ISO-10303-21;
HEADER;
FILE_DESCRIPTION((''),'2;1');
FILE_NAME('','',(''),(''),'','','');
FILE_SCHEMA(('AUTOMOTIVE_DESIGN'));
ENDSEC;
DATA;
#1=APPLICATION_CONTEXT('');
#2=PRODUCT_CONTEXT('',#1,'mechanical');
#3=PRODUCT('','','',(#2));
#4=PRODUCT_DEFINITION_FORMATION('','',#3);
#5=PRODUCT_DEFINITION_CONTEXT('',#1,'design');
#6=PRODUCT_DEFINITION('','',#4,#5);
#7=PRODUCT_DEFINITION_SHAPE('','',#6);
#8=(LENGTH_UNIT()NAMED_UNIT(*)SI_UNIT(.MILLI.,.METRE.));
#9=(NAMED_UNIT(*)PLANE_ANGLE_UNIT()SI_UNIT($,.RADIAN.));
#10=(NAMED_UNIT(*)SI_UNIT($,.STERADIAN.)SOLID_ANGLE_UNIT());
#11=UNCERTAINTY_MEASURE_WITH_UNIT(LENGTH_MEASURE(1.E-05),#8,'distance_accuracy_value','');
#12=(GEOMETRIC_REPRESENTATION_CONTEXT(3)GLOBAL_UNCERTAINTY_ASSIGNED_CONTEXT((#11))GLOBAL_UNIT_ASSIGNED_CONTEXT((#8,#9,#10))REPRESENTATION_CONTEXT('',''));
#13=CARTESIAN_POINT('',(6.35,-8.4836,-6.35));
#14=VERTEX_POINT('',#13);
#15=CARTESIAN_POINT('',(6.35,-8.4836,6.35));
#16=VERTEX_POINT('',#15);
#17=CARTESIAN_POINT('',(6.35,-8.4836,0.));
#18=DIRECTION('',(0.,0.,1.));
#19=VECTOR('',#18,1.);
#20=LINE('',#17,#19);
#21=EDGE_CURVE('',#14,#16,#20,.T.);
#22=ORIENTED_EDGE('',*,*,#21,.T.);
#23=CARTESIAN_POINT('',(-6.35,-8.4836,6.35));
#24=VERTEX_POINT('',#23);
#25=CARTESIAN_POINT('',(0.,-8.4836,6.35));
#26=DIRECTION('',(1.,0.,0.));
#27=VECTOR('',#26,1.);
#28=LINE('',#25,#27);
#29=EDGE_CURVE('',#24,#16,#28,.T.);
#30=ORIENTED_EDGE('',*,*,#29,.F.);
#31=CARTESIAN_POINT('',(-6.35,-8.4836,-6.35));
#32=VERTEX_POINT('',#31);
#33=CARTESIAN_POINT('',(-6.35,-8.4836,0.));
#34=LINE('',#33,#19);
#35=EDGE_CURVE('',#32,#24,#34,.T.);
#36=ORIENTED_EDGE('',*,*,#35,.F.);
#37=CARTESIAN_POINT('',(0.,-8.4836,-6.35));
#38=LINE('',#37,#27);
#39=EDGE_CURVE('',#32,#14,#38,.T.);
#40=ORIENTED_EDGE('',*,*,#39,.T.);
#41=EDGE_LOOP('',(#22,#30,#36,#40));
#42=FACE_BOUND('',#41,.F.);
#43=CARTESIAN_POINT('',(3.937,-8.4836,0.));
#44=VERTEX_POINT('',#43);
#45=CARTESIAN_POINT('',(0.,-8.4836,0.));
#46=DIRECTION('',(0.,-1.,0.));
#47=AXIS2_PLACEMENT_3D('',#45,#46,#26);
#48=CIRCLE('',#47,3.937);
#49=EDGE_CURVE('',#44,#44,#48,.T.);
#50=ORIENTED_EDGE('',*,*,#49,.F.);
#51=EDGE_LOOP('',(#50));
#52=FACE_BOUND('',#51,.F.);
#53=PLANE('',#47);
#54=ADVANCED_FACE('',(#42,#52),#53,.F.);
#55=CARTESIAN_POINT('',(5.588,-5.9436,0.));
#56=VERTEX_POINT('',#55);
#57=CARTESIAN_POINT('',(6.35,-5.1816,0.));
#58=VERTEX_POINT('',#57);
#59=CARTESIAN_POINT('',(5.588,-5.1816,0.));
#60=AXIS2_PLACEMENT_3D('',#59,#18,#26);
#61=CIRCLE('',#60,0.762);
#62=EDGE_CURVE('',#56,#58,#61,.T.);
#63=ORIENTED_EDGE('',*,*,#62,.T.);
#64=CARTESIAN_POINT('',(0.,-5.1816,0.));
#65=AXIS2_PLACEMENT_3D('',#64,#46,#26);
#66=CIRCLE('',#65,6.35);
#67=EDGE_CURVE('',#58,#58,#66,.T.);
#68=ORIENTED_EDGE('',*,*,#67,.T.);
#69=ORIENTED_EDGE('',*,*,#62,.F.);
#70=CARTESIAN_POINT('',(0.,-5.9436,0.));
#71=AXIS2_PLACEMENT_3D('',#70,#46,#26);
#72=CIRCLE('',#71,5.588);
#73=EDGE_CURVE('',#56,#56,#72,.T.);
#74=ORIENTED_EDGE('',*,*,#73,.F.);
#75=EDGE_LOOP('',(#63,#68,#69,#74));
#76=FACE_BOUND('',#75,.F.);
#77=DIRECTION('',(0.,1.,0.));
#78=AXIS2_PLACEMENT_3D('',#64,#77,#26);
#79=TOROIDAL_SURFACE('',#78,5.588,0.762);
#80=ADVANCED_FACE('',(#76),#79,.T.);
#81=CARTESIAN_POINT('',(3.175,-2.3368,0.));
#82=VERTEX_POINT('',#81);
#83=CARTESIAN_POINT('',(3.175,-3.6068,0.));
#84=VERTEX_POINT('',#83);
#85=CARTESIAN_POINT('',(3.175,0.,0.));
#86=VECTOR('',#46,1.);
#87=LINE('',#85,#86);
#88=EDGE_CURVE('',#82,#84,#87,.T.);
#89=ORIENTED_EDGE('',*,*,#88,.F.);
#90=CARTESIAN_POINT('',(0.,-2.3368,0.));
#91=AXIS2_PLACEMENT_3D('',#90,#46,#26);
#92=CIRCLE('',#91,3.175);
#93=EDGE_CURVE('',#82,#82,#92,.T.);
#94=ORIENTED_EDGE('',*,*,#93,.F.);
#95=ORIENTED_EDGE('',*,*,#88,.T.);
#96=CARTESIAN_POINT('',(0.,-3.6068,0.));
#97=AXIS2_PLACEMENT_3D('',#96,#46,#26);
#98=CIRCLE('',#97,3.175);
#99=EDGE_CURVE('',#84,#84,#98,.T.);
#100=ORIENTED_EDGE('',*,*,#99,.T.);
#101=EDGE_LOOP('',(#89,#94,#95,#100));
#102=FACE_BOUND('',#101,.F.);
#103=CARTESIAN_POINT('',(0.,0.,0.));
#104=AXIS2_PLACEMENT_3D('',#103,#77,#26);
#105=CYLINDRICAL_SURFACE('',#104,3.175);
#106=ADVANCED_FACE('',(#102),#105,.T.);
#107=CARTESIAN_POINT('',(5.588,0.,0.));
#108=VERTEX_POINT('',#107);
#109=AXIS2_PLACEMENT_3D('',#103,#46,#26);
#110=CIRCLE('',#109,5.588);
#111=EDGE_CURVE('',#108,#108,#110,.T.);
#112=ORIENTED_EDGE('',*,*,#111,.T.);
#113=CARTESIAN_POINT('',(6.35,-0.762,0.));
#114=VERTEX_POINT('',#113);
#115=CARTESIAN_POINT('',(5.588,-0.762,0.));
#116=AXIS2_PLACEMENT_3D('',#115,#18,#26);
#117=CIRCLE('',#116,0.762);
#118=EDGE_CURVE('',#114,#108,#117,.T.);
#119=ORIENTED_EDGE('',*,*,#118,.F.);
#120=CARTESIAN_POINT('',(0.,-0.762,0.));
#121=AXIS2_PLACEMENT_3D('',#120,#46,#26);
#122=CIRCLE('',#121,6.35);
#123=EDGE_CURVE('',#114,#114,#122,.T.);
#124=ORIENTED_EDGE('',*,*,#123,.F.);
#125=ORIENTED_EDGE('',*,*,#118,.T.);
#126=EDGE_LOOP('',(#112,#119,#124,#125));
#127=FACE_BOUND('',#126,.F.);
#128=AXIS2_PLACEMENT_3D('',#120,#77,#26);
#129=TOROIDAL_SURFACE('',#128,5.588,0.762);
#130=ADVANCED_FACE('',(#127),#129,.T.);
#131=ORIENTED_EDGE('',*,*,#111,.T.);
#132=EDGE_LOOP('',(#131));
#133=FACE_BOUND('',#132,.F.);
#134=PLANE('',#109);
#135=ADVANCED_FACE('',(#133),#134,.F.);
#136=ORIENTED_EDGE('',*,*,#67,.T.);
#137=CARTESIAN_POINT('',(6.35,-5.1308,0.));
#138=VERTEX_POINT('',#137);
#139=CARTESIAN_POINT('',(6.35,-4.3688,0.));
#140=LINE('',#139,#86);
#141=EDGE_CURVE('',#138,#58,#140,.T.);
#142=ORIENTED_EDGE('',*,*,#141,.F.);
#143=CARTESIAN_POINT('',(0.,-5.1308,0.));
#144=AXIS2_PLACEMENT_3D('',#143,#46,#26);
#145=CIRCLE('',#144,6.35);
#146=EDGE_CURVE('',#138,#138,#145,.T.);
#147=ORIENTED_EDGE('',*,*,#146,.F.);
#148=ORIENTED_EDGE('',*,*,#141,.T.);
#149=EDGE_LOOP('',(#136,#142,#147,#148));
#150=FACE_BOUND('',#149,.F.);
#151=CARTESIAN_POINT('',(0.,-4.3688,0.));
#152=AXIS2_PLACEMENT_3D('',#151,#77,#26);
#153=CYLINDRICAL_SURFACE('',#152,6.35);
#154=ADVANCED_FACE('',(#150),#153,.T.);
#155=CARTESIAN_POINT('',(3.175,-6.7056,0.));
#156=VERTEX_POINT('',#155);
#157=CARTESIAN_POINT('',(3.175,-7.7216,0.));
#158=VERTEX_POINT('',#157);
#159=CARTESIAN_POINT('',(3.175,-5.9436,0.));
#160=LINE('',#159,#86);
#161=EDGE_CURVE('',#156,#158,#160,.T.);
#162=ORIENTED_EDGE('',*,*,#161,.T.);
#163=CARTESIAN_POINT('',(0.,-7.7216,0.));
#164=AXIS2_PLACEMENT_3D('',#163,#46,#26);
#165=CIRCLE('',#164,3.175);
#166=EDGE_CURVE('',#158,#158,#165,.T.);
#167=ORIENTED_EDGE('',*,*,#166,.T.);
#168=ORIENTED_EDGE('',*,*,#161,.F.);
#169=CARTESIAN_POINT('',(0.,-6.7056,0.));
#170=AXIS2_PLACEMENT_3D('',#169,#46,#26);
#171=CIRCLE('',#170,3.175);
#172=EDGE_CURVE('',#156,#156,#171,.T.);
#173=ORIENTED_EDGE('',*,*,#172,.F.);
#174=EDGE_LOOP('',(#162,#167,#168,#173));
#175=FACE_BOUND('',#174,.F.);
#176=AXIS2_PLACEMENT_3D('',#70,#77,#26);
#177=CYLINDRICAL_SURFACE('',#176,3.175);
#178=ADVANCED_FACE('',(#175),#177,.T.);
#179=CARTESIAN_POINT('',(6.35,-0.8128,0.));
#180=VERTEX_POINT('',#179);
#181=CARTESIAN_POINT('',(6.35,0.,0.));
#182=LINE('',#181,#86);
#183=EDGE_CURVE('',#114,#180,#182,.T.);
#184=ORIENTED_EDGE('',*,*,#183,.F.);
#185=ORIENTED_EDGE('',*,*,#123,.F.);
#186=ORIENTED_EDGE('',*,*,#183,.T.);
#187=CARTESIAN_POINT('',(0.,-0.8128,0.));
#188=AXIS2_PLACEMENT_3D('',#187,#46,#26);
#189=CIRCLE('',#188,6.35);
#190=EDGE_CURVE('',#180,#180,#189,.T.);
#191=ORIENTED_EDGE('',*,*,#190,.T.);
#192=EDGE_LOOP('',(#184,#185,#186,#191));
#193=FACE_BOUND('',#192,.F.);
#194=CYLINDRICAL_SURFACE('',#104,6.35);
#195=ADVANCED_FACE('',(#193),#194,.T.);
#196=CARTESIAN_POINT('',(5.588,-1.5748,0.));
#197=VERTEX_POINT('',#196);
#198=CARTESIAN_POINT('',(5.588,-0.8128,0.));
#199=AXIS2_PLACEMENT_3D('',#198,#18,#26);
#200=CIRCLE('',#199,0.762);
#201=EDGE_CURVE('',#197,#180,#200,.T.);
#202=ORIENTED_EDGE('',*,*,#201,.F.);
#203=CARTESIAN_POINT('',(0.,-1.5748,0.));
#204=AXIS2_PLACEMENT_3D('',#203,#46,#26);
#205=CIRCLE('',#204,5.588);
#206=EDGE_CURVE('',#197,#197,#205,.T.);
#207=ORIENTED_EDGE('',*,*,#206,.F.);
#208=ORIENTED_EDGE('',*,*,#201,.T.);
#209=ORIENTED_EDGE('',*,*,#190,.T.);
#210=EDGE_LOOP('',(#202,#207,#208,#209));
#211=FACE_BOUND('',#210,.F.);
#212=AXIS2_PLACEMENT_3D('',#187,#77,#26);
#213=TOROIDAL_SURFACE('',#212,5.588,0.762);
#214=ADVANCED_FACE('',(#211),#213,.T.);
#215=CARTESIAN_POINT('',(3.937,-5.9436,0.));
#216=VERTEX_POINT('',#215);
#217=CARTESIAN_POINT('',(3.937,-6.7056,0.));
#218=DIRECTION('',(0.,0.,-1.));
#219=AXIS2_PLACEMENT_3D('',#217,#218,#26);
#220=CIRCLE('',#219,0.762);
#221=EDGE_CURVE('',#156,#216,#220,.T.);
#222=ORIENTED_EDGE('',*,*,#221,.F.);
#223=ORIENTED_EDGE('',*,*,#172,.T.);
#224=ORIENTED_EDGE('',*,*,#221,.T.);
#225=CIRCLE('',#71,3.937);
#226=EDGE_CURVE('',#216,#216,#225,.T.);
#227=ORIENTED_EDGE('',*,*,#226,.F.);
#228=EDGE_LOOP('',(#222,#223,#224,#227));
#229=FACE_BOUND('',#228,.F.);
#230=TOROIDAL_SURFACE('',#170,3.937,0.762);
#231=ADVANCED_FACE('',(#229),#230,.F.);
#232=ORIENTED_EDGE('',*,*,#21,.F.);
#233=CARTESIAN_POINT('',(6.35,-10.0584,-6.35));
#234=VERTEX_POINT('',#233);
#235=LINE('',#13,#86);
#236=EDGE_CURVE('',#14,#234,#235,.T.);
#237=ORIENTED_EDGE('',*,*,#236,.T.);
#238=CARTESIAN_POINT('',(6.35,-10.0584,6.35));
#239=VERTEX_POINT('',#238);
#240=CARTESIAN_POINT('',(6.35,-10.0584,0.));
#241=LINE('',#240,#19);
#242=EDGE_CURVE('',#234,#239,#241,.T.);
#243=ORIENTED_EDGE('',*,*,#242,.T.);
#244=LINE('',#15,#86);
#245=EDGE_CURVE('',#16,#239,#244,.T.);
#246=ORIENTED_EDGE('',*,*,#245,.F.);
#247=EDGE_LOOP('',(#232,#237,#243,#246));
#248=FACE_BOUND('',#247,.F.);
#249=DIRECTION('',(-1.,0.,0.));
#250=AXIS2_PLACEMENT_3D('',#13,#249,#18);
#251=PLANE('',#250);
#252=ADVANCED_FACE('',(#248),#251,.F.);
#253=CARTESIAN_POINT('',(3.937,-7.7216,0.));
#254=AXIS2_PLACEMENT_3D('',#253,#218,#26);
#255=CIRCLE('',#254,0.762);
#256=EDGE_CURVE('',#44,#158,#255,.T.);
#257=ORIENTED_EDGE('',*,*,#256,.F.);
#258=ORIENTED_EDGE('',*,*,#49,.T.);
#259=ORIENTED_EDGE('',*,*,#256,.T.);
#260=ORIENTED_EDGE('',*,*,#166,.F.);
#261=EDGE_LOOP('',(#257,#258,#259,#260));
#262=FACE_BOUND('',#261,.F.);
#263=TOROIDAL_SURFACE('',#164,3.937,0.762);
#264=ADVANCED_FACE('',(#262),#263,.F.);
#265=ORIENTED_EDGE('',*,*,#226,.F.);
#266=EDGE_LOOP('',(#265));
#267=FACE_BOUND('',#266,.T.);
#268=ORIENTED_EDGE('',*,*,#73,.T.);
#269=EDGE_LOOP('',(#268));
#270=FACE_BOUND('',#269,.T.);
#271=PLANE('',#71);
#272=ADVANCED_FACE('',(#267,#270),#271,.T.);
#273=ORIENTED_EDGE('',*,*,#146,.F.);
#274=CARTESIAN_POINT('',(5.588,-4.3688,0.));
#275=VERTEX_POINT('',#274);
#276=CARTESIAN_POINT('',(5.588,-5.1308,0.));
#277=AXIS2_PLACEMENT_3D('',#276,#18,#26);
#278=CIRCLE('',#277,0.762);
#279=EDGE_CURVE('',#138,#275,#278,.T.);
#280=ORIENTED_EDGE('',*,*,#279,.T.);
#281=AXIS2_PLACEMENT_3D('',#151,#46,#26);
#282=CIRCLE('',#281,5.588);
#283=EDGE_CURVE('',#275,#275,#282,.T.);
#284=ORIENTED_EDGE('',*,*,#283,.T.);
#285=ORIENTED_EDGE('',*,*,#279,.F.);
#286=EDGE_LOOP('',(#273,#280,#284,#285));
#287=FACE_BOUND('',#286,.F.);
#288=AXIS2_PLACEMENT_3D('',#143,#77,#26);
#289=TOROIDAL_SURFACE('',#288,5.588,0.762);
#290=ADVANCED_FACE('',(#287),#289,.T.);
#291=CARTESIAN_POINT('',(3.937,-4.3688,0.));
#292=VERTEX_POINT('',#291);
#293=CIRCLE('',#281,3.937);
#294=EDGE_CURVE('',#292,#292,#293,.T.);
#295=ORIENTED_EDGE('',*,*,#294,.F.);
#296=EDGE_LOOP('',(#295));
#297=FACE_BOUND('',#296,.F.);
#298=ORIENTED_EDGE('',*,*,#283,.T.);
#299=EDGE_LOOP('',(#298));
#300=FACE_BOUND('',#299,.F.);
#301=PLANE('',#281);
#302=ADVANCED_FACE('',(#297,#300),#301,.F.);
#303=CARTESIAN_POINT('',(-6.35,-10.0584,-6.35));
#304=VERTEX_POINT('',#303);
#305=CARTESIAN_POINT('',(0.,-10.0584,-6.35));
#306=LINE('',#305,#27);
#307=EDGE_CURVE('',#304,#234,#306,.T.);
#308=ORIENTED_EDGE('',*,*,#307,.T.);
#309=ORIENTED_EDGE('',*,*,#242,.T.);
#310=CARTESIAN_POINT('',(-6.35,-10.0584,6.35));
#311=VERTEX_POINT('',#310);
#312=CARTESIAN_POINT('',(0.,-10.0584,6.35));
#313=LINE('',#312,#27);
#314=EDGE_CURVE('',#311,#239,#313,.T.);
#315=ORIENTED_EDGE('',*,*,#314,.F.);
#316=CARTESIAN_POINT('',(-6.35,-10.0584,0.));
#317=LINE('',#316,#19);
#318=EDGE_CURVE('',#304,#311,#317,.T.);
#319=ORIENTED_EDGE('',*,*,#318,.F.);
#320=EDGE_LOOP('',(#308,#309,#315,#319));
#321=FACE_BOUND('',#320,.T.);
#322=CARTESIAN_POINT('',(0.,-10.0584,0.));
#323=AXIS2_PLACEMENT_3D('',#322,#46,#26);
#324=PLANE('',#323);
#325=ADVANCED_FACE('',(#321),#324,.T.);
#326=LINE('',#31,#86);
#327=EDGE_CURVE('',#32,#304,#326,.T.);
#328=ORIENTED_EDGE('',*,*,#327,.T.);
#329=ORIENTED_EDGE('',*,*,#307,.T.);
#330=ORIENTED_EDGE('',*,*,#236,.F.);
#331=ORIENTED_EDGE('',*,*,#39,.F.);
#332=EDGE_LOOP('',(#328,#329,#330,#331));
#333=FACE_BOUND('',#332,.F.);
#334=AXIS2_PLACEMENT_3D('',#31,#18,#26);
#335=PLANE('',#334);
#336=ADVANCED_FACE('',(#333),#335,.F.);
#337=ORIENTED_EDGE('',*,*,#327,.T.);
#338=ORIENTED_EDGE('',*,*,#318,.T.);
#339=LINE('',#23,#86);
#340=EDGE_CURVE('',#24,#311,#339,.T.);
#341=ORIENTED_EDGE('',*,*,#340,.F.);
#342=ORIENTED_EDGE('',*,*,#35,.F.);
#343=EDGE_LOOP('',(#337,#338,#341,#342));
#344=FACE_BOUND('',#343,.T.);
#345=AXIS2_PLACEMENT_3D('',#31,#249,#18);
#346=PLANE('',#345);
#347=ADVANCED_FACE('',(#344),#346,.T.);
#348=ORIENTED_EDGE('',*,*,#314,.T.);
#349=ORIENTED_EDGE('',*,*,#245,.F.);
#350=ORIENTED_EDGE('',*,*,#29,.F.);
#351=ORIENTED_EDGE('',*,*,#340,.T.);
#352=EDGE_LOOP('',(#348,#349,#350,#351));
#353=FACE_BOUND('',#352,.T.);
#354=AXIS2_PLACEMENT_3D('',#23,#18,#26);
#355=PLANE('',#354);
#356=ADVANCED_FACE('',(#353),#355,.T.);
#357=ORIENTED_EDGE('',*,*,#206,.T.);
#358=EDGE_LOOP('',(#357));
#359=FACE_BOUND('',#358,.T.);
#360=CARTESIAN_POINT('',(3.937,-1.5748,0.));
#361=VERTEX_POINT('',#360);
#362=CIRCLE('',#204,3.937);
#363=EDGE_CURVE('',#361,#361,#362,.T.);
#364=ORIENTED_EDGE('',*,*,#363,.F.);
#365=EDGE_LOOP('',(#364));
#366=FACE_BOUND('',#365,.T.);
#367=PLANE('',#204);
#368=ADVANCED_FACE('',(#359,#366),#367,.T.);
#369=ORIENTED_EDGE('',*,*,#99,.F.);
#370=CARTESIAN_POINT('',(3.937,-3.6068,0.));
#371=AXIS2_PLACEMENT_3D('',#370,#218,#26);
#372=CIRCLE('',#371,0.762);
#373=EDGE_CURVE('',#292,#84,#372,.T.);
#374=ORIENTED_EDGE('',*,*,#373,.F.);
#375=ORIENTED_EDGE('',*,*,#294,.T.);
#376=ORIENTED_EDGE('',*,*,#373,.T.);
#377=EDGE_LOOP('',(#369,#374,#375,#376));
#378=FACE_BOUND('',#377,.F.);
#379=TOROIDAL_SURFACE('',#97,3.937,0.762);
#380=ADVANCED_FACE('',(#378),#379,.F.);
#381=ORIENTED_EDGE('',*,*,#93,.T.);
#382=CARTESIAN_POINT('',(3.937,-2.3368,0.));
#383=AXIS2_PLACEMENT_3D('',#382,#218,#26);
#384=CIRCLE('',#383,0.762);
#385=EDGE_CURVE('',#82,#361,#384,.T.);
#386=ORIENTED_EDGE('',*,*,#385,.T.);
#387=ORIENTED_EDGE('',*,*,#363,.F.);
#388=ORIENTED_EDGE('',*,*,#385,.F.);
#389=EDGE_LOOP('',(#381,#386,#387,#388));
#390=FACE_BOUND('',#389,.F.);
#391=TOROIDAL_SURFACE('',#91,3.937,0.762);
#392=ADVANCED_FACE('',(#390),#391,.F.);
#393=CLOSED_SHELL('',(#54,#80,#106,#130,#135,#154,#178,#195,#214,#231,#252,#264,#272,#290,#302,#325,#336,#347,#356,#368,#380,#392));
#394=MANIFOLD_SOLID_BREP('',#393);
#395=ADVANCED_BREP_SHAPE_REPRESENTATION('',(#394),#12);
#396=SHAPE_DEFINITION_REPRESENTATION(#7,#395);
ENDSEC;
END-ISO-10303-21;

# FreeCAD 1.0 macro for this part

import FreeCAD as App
import Part
import Sketcher
Q = App.Units.Quantity


def edges_at(feature, points):
    """Names of the edges that pass closest to the given points."""
    edges = feature.Shape.Edges
    near = lambda p: min(range(len(edges)), key=lambda i: edges[i].distToShape(Part.Vertex(*p))[0])
    return sorted({f"Edge{near(p) + 1}" for p in points})

doc = App.newDocument("Part")
body = doc.addObject("PartDesign::Body", "Body")

sketch1 = body.newObject("Sketcher::SketchObject", "Sketch")
sketch1.AttachmentSupport = (doc.getObject("XZ_Plane"), [""])
sketch1.MapMode = "FlatFace"
sketch1.addGeometry(Part.Circle(App.Vector(0, 0, 0), App.Vector(0, 0, 1), 6.3), False)
sketch1.addGeometry(Part.Circle(App.Vector(0, 0, 0), App.Vector(0, 0, 1), 3.2), False)
sketch1.addConstraint(Sketcher.Constraint("Coincident", 0, 3, -1, 1))
sketch1.addConstraint(Sketcher.Constraint("Coincident", 1, 3, -1, 1))
sketch1.addConstraint(Sketcher.Constraint("Diameter", 0, Q("0.5 in")))
sketch1.addConstraint(Sketcher.Constraint("Diameter", 1, Q("0.25 in")))
pad1 = body.newObject("PartDesign::Pad", "Pad")
pad1.Profile = sketch1
pad1.Length = Q("0.062 in")

sketch2 = body.newObject("Sketcher::SketchObject", "Sketch001")
sketch2.AttachmentSupport = (doc.getObject("XZ_Plane"), [""])
sketch2.MapMode = "FlatFace"
sketch2.addGeometry(Part.Circle(App.Vector(0, 0, 0), App.Vector(0, 0, 1), 3.2), False)
sketch2.addConstraint(Sketcher.Constraint("Coincident", 0, 3, -1, 1))
sketch2.addConstraint(Sketcher.Constraint("Diameter", 0, Q("0.25 in")))
pad2 = body.newObject("PartDesign::Pad", "Pad001")
pad2.Profile = sketch2
pad2.Length = Q("0.172 in")

sketch3 = body.newObject("Sketcher::SketchObject", "Sketch002")
sketch3.AttachmentSupport = (doc.getObject("XZ_Plane"), [""])
sketch3.MapMode = "FlatFace"
sketch3.AttachmentOffset = App.Placement(App.Vector(0, 0, 0.172 * 25.4), App.Rotation())
sketch3.addGeometry(Part.Circle(App.Vector(0, 0, 0), App.Vector(0, 0, 1), 6), False)
sketch3.addConstraint(Sketcher.Constraint("Coincident", 0, 3, -1, 1))
sketch3.addConstraint(Sketcher.Constraint("Diameter", 0, Q("0.5 in")))
pad3 = body.newObject("PartDesign::Pad", "Pad002")
pad3.Profile = sketch3
pad3.Length = Q("0.062 in")

sketch4 = body.newObject("Sketcher::SketchObject", "Sketch003")
sketch4.AttachmentSupport = (doc.getObject("XZ_Plane"), [""])
sketch4.MapMode = "FlatFace"
sketch4.AttachmentOffset = App.Placement(App.Vector(0, 0, 0.234 * 25.4), App.Rotation())
sketch4.addGeometry(Part.Circle(App.Vector(0, 0, 0), App.Vector(0, 0, 1), 3.2), False)
sketch4.addConstraint(Sketcher.Constraint("Coincident", 0, 3, -1, 1))
sketch4.addConstraint(Sketcher.Constraint("Diameter", 0, Q("0.25 in")))
pad4 = body.newObject("PartDesign::Pad", "Pad003")
pad4.Profile = sketch4
pad4.Length = Q("0.1 in")

sketch5 = body.newObject("Sketcher::SketchObject", "Sketch004")
sketch5.AttachmentSupport = (doc.getObject("XZ_Plane"), [""])
sketch5.MapMode = "FlatFace"
sketch5.AttachmentOffset = App.Placement(App.Vector(0, 0, 0.334 * 25.4), App.Rotation())
sketch5.addGeometry(Part.LineSegment(App.Vector(-6, 6, 0), App.Vector(-6, -6, 0)), False)
sketch5.addGeometry(Part.LineSegment(App.Vector(-6, -6, 0), App.Vector(6, -6, 0)), False)
sketch5.addGeometry(Part.LineSegment(App.Vector(6, -6, 0), App.Vector(6, 6, 0)), False)
sketch5.addGeometry(Part.LineSegment(App.Vector(6, 6, 0), App.Vector(-6, 6, 0)), False)
sketch5.addConstraint(Sketcher.Constraint("Coincident", 0, 2, 1, 1))
sketch5.addConstraint(Sketcher.Constraint("Coincident", 1, 2, 2, 1))
sketch5.addConstraint(Sketcher.Constraint("Coincident", 2, 2, 3, 1))
sketch5.addConstraint(Sketcher.Constraint("Coincident", 3, 2, 0, 1))
sketch5.addConstraint(Sketcher.Constraint("Vertical", 0))
sketch5.addConstraint(Sketcher.Constraint("Horizontal", 1))
sketch5.addConstraint(Sketcher.Constraint("Vertical", 2))
sketch5.addConstraint(Sketcher.Constraint("Horizontal", 3))
sketch5.addConstraint(Sketcher.Constraint("Symmetric", 0, 2, 2, 2, -1, 1))
sketch5.addConstraint(Sketcher.Constraint("Equal", 3, 0))
sketch5.addConstraint(Sketcher.Constraint("DistanceX", 1, 1, 1, 2, Q("0.5 in")))
pad5 = body.newObject("PartDesign::Pad", "Pad004")
pad5.Profile = sketch5
pad5.Length = Q("0.062 in")
doc.recompute()

fillet = body.newObject("PartDesign::Fillet", "Fillet")
fillet.Base = (pad5, edges_at(pad5, [
    (-6.35, -5.944, 0),
    (-6.35, -4.369, 0),
    (-6.35, -1.575, 0),
    (-6.35, 0, 0),
    (-3.175, -1.575, 0),
    (-3.175, -4.369, 0),
    (-3.175, -5.944, 0),
    (-3.175, -8.484, 0),
]))
fillet.Radius = Q("0.03 in")

doc.recompute()
